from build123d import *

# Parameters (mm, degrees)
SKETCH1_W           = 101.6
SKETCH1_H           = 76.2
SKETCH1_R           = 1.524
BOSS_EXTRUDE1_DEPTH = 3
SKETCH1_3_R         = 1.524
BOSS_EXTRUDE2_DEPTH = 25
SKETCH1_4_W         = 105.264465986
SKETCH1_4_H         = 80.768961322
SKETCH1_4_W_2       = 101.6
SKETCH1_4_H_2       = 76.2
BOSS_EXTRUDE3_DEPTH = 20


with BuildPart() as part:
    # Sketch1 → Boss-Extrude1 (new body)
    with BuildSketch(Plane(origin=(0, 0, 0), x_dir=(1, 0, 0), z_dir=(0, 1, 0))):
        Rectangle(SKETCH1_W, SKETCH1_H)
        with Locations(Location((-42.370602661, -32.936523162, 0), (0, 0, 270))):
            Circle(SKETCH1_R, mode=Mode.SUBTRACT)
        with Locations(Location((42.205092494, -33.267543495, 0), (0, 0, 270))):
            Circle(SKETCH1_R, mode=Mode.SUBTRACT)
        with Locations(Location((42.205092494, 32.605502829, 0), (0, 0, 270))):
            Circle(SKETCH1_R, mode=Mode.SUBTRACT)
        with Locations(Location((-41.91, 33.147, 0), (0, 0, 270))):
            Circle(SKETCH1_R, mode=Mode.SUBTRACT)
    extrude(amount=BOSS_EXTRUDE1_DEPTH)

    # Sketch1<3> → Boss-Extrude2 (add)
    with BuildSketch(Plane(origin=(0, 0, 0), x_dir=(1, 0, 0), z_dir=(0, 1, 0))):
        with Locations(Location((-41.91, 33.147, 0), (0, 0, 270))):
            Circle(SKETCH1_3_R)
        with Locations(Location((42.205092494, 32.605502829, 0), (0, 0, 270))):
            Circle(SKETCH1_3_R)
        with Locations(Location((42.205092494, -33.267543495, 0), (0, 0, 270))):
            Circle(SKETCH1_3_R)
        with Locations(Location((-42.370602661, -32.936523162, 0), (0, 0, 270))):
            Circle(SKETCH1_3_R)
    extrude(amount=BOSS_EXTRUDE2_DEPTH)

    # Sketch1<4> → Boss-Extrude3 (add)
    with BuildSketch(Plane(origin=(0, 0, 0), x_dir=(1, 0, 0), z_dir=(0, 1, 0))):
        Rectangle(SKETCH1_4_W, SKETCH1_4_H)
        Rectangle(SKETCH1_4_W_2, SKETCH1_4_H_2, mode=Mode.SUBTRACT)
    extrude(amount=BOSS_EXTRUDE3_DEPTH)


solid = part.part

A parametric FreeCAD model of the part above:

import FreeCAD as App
import Part
import Sketcher

doc = App.newDocument("Part")
body = doc.addObject("PartDesign::Body", "Body")

# Sketch on XZ plane
sketch1 = body.newObject("Sketcher::SketchObject", "Sketch")
sketch1.AttachmentSupport = (doc.getObject("XZ_Plane"), [""])
sketch1.MapMode = "FlatFace"
sketch1.addGeometry(Part.LineSegment(App.Vector(-50.8, -38.1, 0), App.Vector(-50.8, 38.1, 0)), False)
sketch1.addGeometry(Part.LineSegment(App.Vector(-50.8, 38.1, 0), App.Vector(50.8, 38.1, 0)), False)
sketch1.addGeometry(Part.LineSegment(App.Vector(50.8, 38.1, 0), App.Vector(50.8, -38.1, 0)), False)
sketch1.addGeometry(Part.LineSegment(App.Vector(50.8, -38.1, 0), App.Vector(-50.8, -38.1, 0)), False)
sketch1.addGeometry(Part.Circle(App.Vector(-42.4, 32.9, 0), App.Vector(0, 0, 1), 1.5), False)
sketch1.addGeometry(Part.Circle(App.Vector(42.2, 33.3, 0), App.Vector(0, 0, 1), 1.5), False)
sketch1.addGeometry(Part.Circle(App.Vector(-41.9, -33.1, 0), App.Vector(0, 0, 1), 1.5), False)
sketch1.addGeometry(Part.Circle(App.Vector(42.2, -32.6, 0), App.Vector(0, 0, 1), 1.5), False)
sketch1.addConstraint(Sketcher.Constraint("Coincident", 0, 2, 1, 1))
sketch1.addConstraint(Sketcher.Constraint("Coincident", 1, 2, 2, 1))
sketch1.addConstraint(Sketcher.Constraint("Coincident", 2, 2, 3, 1))
sketch1.addConstraint(Sketcher.Constraint("Coincident", 3, 2, 0, 1))
sketch1.addConstraint(Sketcher.Constraint("Vertical", 0))
sketch1.addConstraint(Sketcher.Constraint("Horizontal", 1))
sketch1.addConstraint(Sketcher.Constraint("Vertical", 2))
sketch1.addConstraint(Sketcher.Constraint("Horizontal", 3))
sketch1.addConstraint(Sketcher.Constraint("Equal", 4, 5))
sketch1.addConstraint(Sketcher.Constraint("Equal", 5, 6))
sketch1.addConstraint(Sketcher.Constraint("Equal", 6, 7))
sketch1.addConstraint(Sketcher.Constraint("Symmetric", 0, 2, 2, 2, -1, 1))
sketch1.addConstraint(Sketcher.Constraint("Vertical", 5, 3, 7, 3))
sketch1.addConstraint(Sketcher.Constraint("Diameter", 4, 3.048))
sketch1.addConstraint(Sketcher.Constraint("DistanceX", 1, 1, 1, 2, 101.6))
sketch1.addConstraint(Sketcher.Constraint("DistanceY", 0, 1, 0, 2, 76.2))
sketch1.addConstraint(Sketcher.Constraint("DistanceX", 6, 3, -1, 1, 41.91))
sketch1.addConstraint(Sketcher.Constraint("DistanceY", 6, 3, -1, 1, 33.147))
sketch1.addConstraint(Sketcher.Constraint("DistanceY", 4, 3, 5, 3, 0.33102))
sketch1.addConstraint(Sketcher.Constraint("DistanceX", 4, 3, -1, 1, 42.370603))
sketch1.addConstraint(Sketcher.Constraint("DistanceY", -1, 1, 4, 3, 32.936523))
sketch1.addConstraint(Sketcher.Constraint("DistanceX", -1, 1, 5, 3, 42.205092))
sketch1.addConstraint(Sketcher.Constraint("DistanceY", 7, 3, -1, 1, 32.605503))
pad1 = body.newObject("PartDesign::Pad", "Pad")
pad1.Profile = sketch1
pad1.Length = 3
pad1.Reversed = True

# Sketch on XZ plane
sketch2 = body.newObject("Sketcher::SketchObject", "Sketch001")
sketch2.AttachmentSupport = (doc.getObject("XZ_Plane"), [""])
sketch2.MapMode = "FlatFace"
sketch2.addGeometry(Part.Circle(App.Vector(-41.9, -33.1, 0), App.Vector(0, 0, 1), 1.5), False)
sketch2.addGeometry(Part.Circle(App.Vector(42.2, -32.6, 0), App.Vector(0, 0, 1), 1.5), False)
sketch2.addGeometry(Part.Circle(App.Vector(42.2, 33.3, 0), App.Vector(0, 0, 1), 1.5), False)
sketch2.addGeometry(Part.Circle(App.Vector(-42.4, 32.9, 0), App.Vector(0, 0, 1), 1.5), False)
sketch2.addConstraint(Sketcher.Constraint("Equal", 0, 1))
sketch2.addConstraint(Sketcher.Constraint("Equal", 1, 2))
sketch2.addConstraint(Sketcher.Constraint("Equal", 2, 3))
sketch2.addConstraint(Sketcher.Constraint("Vertical", 1, 3, 2, 3))
sketch2.addConstraint(Sketcher.Constraint("Diameter", 0, 3.048))
sketch2.addConstraint(Sketcher.Constraint("DistanceX", 0, 3, -1, 1, 41.91))
sketch2.addConstraint(Sketcher.Constraint("DistanceY", 0, 3, -1, 1, 33.147))
sketch2.addConstraint(Sketcher.Constraint("DistanceY", 3, 3, 2, 3, 0.33102))
sketch2.addConstraint(Sketcher.Constraint("DistanceX", -1, 1, 1, 3, 42.205092))
sketch2.addConstraint(Sketcher.Constraint("DistanceY", 1, 3, -1, 1, 32.605503))
sketch2.addConstraint(Sketcher.Constraint("DistanceY", -1, 1, 2, 3, 33.267543))
sketch2.addConstraint(Sketcher.Constraint("DistanceX", 3, 3, -1, 1, 42.370603))
pad2 = body.newObject("PartDesign::Pad", "Pad001")
pad2.Profile = sketch2
pad2.Length = 25
pad2.Reversed = True

# Sketch on XZ plane
sketch3 = body.newObject("Sketcher::SketchObject", "Sketch002")
sketch3.AttachmentSupport = (doc.getObject("XZ_Plane"), [""])
sketch3.MapMode = "FlatFace"
sketch3.addGeometry(Part.LineSegment(App.Vector(-53, -40, 0), App.Vector(-53, 40, 0)), False)
sketch3.addGeometry(Part.LineSegment(App.Vector(-53, 40, 0), App.Vector(53, 40, 0)), False)
sketch3.addGeometry(Part.LineSegment(App.Vector(53, 40, 0), App.Vector(53, -40, 0)), False)
sketch3.addGeometry(Part.LineSegment(App.Vector(53, -40, 0), App.Vector(-53, -40, 0)), False)
sketch3.addGeometry(Part.LineSegment(App.Vector(51, 38, 0), App.Vector(-51, 38, 0)), False)
sketch3.addGeometry(Part.LineSegment(App.Vector(-51, 38, 0), App.Vector(-51, -38, 0)), False)
sketch3.addGeometry(Part.LineSegment(App.Vector(-51, -38, 0), App.Vector(51, -38, 0)), False)
sketch3.addGeometry(Part.LineSegment(App.Vector(51, -38, 0), App.Vector(51, 38, 0)), False)
sketch3.addConstraint(Sketcher.Constraint("Coincident", 0, 2, 1, 1))
sketch3.addConstraint(Sketcher.Constraint("Coincident", 1, 2, 2, 1))
sketch3.addConstraint(Sketcher.Constraint("Coincident", 2, 2, 3, 1))
sketch3.addConstraint(Sketcher.Constraint("Coincident", 3, 2, 0, 1))
sketch3.addConstraint(Sketcher.Constraint("Coincident", 4, 2, 5, 1))
sketch3.addConstraint(Sketcher.Constraint("Coincident", 5, 2, 6, 1))
sketch3.addConstraint(Sketcher.Constraint("Coincident", 6, 2, 7, 1))
sketch3.addConstraint(Sketcher.Constraint("Coincident", 7, 2, 4, 1))
sketch3.addConstraint(Sketcher.Constraint("Vertical", 0))
sketch3.addConstraint(Sketcher.Constraint("Horizontal", 1))
sketch3.addConstraint(Sketcher.Constraint("Vertical", 2))
sketch3.addConstraint(Sketcher.Constraint("Horizontal", 3))
sketch3.addConstraint(Sketcher.Constraint("Horizontal", 4))
sketch3.addConstraint(Sketcher.Constraint("Vertical", 5))
sketch3.addConstraint(Sketcher.Constraint("Horizontal", 6))
sketch3.addConstraint(Sketcher.Constraint("Vertical", 7))
sketch3.addConstraint(Sketcher.Constraint("Symmetric", 0, 2, 2, 2, -1, 1))
sketch3.addConstraint(Sketcher.Constraint("Symmetric", 4, 2, 6, 2, -1, 1))
sketch3.addConstraint(Sketcher.Constraint("DistanceX", 4, 2, 4, 1, 101.6))
sketch3.addConstraint(Sketcher.Constraint("DistanceY", 5, 2, 5, 1, 76.2))
sketch3.addConstraint(Sketcher.Constraint("DistanceY", 0, 1, 0, 2, 80.768961))
sketch3.addConstraint(Sketcher.Constraint("DistanceX", 1, 1, 1, 2, 105.264466))
pad3 = body.newObject("PartDesign::Pad", "Pad002")
pad3.Profile = sketch3
pad3.Length = 20
pad3.Reversed = True

doc.recompute()
